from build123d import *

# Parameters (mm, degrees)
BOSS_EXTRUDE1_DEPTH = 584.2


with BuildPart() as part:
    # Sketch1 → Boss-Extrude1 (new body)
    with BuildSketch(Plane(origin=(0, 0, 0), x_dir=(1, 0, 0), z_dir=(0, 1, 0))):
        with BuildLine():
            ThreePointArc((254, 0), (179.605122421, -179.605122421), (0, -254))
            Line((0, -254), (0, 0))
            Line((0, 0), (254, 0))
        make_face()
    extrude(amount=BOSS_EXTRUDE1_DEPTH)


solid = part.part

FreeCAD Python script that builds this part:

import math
import FreeCAD as App
import Part
import Sketcher
from FreeCAD import Vector
Q = App.Units.Quantity

doc = App.newDocument("Part")
body = doc.addObject("PartDesign::Body", "Body")

# Sketch on XZ plane
sketch1 = body.newObject("Sketcher::SketchObject", "Sketch")
sketch1.AttachmentSupport = (doc.getObject("XZ_Plane"), [""])
sketch1.MapMode = "FlatFace"
sketch1.addGeometry(Part.ArcOfCircle(Part.Circle(Vector(0, 0, 0), Vector(0, 0, 1), 254), math.radians(0), math.radians(90)), False)
sketch1.addGeometry(Part.LineSegment(Vector(254, 0, 0), Vector(0, 0, 0)), False)
sketch1.addGeometry(Part.LineSegment(Vector(0, 0, 0), Vector(0, 254, 0)), False)
sketch1.addConstraint(Sketcher.Constraint("Coincident", 0, 1, 1, 1))
sketch1.addConstraint(Sketcher.Constraint("Coincident", 1, 2, 2, 1))
sketch1.addConstraint(Sketcher.Constraint("Coincident", 2, 2, 0, 2))
sketch1.addConstraint(Sketcher.Constraint("Horizontal", 1))
sketch1.addConstraint(Sketcher.Constraint("Vertical", 2))
sketch1.addConstraint(Sketcher.Constraint("Coincident", 0, 3, -1, 1))
sketch1.addConstraint(Sketcher.Constraint("Coincident", 1, 2, -1, 1))
sketch1.addConstraint(Sketcher.Constraint("Radius", 0, Q("10 in")))
pad1 = body.newObject("PartDesign::Pad", "Pad")
pad1.Profile = sketch1
pad1.Length = Q("23 in")
pad1.Reversed = True

doc.recompute()
